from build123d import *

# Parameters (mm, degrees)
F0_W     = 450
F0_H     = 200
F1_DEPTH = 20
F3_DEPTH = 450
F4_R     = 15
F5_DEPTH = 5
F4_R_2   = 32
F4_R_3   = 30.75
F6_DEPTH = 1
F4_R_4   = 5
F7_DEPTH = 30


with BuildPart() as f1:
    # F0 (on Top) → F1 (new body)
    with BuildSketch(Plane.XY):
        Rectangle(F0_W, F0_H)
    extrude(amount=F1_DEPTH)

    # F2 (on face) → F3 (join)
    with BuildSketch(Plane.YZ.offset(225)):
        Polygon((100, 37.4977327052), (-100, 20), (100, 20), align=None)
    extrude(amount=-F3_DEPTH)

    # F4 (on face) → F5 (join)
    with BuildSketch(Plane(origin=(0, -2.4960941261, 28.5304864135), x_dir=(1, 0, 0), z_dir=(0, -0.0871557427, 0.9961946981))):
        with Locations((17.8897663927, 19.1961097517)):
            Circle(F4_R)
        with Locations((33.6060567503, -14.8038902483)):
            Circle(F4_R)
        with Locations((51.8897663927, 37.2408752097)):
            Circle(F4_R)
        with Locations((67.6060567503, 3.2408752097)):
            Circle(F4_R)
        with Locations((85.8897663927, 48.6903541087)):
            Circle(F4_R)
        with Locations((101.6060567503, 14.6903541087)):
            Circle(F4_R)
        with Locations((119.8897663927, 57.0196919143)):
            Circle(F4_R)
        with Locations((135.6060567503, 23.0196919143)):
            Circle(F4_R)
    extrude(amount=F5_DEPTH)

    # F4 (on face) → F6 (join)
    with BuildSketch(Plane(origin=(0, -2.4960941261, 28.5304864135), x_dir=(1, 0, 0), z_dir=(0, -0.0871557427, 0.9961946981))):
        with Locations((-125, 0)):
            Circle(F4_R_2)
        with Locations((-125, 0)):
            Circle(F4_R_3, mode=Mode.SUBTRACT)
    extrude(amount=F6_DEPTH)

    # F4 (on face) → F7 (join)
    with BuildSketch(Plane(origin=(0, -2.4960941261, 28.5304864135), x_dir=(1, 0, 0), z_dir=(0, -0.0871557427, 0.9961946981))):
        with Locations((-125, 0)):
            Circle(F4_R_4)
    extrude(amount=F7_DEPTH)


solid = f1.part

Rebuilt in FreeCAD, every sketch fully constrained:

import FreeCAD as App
import Part
import Sketcher

V = App.Vector
Q = App.Units.Quantity


def add_polygon(sketch, points):
    """Adds a closed chain of lines whose ends are joined by coincident constraints."""
    first, n = sketch.GeometryCount, len(points)
    for a, b in zip(points, points[1:] + points[:1]):
        sketch.addGeometry(Part.LineSegment(App.Vector(*a, 0), App.Vector(*b, 0)), False)
    for i in range(n):
        sketch.addConstraint(Sketcher.Constraint("Coincident", first + i, 2, first + (i + 1) % n, 1))

doc = App.newDocument("Part")
body = doc.addObject("PartDesign::Body", "Body")

# Sketch on XY plane
sketch1 = body.newObject("Sketcher::SketchObject", "Sketch")
sketch1.AttachmentSupport = (doc.getObject("XY_Plane"), [""])
sketch1.MapMode = "FlatFace"
add_polygon(sketch1, [(-225, 100), (-225, -100), (225, -100), (225, 100)])  # lines 0-3
sketch1.addConstraint([
    Sketcher.Constraint("Vertical", 0),
    Sketcher.Constraint("Horizontal", 1),
    Sketcher.Constraint("Vertical", 2),
    Sketcher.Constraint("Horizontal", 3),
    Sketcher.Constraint("Symmetric", 0, 2, 2, 2, -1, 1),
    Sketcher.Constraint("DistanceX", 1, 1, 1, 2, Q("450 mm")),
    Sketcher.Constraint("DistanceY", 0, 2, 0, 1, Q("200 mm")),
])
pad1 = body.newObject("PartDesign::Pad", "Pad")
pad1.Profile = sketch1
pad1.Length = 20

# Sketch on YZ plane
sketch2 = body.newObject("Sketcher::SketchObject", "Sketch001")
sketch2.AttachmentSupport = (doc.getObject("YZ_Plane"), [""])
sketch2.MapMode = "FlatFace"
sketch2.AttachmentOffset = App.Placement(V(0, 0, 225), App.Rotation())
add_polygon(sketch2, [(100, 37), (-100, 20), (100, 20)])  # lines 0-2
sketch2.addConstraint([
    Sketcher.Constraint("Horizontal", 1),
    Sketcher.Constraint("Vertical", 2),
    Sketcher.Constraint("DistanceX", 1, 1, 1, 2, Q("200 mm")),
    Sketcher.Constraint("Angle", 0, Q("-175 deg")),
    Sketcher.Constraint("DistanceX", 0, 2, -1, 1, Q("100 mm")),
    Sketcher.Constraint("DistanceY", -1, 1, 0, 2, Q("20 mm")),
])
pad2 = body.newObject("PartDesign::Pad", "Pad001")
pad2.Profile = sketch2
pad2.Length = 450
pad2.Reversed = True

# Sketch on an angled plane
sketch3 = body.newObject("Sketcher::SketchObject", "Sketch002")
sketch3.Placement = App.Placement(V(0, -2.496094, 28.530486), App.Rotation(V(1, 0, 0), V(0, 0.996194698, 0.087155743), V(0, -0.087155743, 0.996194698), "ZXY"))
sketch3.addGeometry([
    Part.Circle(V(18, 19, 0), V(0, 0, 1), 15),  # 0
    Part.Circle(V(34, -15, 0), V(0, 0, 1), 15),  # 1
    Part.Circle(V(52, 37, 0), V(0, 0, 1), 15),  # 2
    Part.Circle(V(68, 3, 0), V(0, 0, 1), 15),  # 3
    Part.Circle(V(86, 49, 0), V(0, 0, 1), 15),  # 4
    Part.Circle(V(102, 15, 0), V(0, 0, 1), 15),  # 5
    Part.Circle(V(120, 57, 0), V(0, 0, 1), 15),  # 6
    Part.Circle(V(136, 23, 0), V(0, 0, 1), 15),  # 7
], False)
sketch3.addConstraint([
    Sketcher.Constraint("Equal", 0, 1),
    Sketcher.Constraint("Equal", 1, 2),
    Sketcher.Constraint("Equal", 2, 3),
    Sketcher.Constraint("Equal", 3, 4),
    Sketcher.Constraint("Equal", 4, 5),
    Sketcher.Constraint("Equal", 5, 6),
    Sketcher.Constraint("Equal", 6, 7),
    Sketcher.Constraint("Diameter", 0, Q("30 mm")),
    Sketcher.Constraint("DistanceY", 1, 3, 0, 3, Q("34 mm")),
    Sketcher.Constraint("DistanceX", 0, 3, 2, 3, Q("34 mm")),
    Sketcher.Constraint("DistanceY", 3, 3, 2, 3, Q("34 mm")),
    Sketcher.Constraint("DistanceX", 1, 3, 3, 3, Q("34 mm")),
    Sketcher.Constraint("DistanceX", 2, 3, 4, 3, Q("34 mm")),
    Sketcher.Constraint("DistanceX", 3, 3, 5, 3, Q("34 mm")),
    Sketcher.Constraint("DistanceY", 5, 3, 4, 3, Q("34 mm")),
    Sketcher.Constraint("DistanceX", 4, 3, 6, 3, Q("34 mm")),
    Sketcher.Constraint("DistanceX", 5, 3, 7, 3, Q("34 mm")),
    Sketcher.Constraint("DistanceY", 7, 3, 6, 3, Q("34 mm")),
    Sketcher.Constraint("DistanceY", -1, 1, 0, 3, Q("19.19611 mm")),
    Sketcher.Constraint("DistanceY", -1, 1, 6, 3, Q("57.019692 mm")),
    Sketcher.Constraint("DistanceX", 0, 3, 1, 3, Q("15.71629 mm")),
    Sketcher.Constraint("DistanceY", 2, 3, 4, 3, Q("11.449479 mm")),
    Sketcher.Constraint("DistanceX", -1, 1, 0, 3, Q("17.889766 mm")),
    Sketcher.Constraint("DistanceY", -1, 1, 2, 3, Q("37.240875 mm")),
])
pad3 = body.newObject("PartDesign::Pad", "Pad002")
pad3.Profile = sketch3
pad3.Length = 5

# Sketch on an angled plane
sketch4 = body.newObject("Sketcher::SketchObject", "Sketch003")
sketch4.Placement = App.Placement(V(0, -2.496094, 28.530486), App.Rotation(V(1, 0, 0), V(0, 0.996194698, 0.087155743), V(0, -0.087155743, 0.996194698), "ZXY"))
sketch4.addGeometry([
    Part.Circle(V(-125, 0, 0), V(0, 0, 1), 32),
    Part.Circle(V(-125, 0, 0), V(0, 0, 1), 31),
], False)
sketch4.addConstraint([
    Sketcher.Constraint("Coincident", 1, 3, 0, 3),
    Sketcher.Constraint("PointOnObject", 0, 3, -1),
    Sketcher.Constraint("Diameter", 0, Q("64 mm")),
    Sketcher.Constraint("Diameter", 1, Q("61.5 mm")),
    Sketcher.Constraint("DistanceX", 0, 3, -1, 1, Q("125 mm")),
])
pad4 = body.newObject("PartDesign::Pad", "Pad003")
pad4.Profile = sketch4
pad4.Length = 1

# Sketch on an angled plane
sketch5 = body.newObject("Sketcher::SketchObject", "Sketch004")
sketch5.Placement = App.Placement(V(0, -2.496094, 28.530486), App.Rotation(V(1, 0, 0), V(0, 0.996194698, 0.087155743), V(0, -0.087155743, 0.996194698), "ZXY"))
sketch5.addGeometry(Part.Circle(V(-125, 0, 0), V(0, 0, 1), 5), False)
sketch5.addConstraint([
    Sketcher.Constraint("PointOnObject", 0, 3, -1),
    Sketcher.Constraint("Diameter", 0, Q("10 mm")),
    Sketcher.Constraint("DistanceX", 0, 3, -1, 1, Q("125 mm")),
])
pad5 = body.newObject("PartDesign::Pad", "Pad004")
pad5.Profile = sketch5
pad5.Length = 30

doc.recompute()
